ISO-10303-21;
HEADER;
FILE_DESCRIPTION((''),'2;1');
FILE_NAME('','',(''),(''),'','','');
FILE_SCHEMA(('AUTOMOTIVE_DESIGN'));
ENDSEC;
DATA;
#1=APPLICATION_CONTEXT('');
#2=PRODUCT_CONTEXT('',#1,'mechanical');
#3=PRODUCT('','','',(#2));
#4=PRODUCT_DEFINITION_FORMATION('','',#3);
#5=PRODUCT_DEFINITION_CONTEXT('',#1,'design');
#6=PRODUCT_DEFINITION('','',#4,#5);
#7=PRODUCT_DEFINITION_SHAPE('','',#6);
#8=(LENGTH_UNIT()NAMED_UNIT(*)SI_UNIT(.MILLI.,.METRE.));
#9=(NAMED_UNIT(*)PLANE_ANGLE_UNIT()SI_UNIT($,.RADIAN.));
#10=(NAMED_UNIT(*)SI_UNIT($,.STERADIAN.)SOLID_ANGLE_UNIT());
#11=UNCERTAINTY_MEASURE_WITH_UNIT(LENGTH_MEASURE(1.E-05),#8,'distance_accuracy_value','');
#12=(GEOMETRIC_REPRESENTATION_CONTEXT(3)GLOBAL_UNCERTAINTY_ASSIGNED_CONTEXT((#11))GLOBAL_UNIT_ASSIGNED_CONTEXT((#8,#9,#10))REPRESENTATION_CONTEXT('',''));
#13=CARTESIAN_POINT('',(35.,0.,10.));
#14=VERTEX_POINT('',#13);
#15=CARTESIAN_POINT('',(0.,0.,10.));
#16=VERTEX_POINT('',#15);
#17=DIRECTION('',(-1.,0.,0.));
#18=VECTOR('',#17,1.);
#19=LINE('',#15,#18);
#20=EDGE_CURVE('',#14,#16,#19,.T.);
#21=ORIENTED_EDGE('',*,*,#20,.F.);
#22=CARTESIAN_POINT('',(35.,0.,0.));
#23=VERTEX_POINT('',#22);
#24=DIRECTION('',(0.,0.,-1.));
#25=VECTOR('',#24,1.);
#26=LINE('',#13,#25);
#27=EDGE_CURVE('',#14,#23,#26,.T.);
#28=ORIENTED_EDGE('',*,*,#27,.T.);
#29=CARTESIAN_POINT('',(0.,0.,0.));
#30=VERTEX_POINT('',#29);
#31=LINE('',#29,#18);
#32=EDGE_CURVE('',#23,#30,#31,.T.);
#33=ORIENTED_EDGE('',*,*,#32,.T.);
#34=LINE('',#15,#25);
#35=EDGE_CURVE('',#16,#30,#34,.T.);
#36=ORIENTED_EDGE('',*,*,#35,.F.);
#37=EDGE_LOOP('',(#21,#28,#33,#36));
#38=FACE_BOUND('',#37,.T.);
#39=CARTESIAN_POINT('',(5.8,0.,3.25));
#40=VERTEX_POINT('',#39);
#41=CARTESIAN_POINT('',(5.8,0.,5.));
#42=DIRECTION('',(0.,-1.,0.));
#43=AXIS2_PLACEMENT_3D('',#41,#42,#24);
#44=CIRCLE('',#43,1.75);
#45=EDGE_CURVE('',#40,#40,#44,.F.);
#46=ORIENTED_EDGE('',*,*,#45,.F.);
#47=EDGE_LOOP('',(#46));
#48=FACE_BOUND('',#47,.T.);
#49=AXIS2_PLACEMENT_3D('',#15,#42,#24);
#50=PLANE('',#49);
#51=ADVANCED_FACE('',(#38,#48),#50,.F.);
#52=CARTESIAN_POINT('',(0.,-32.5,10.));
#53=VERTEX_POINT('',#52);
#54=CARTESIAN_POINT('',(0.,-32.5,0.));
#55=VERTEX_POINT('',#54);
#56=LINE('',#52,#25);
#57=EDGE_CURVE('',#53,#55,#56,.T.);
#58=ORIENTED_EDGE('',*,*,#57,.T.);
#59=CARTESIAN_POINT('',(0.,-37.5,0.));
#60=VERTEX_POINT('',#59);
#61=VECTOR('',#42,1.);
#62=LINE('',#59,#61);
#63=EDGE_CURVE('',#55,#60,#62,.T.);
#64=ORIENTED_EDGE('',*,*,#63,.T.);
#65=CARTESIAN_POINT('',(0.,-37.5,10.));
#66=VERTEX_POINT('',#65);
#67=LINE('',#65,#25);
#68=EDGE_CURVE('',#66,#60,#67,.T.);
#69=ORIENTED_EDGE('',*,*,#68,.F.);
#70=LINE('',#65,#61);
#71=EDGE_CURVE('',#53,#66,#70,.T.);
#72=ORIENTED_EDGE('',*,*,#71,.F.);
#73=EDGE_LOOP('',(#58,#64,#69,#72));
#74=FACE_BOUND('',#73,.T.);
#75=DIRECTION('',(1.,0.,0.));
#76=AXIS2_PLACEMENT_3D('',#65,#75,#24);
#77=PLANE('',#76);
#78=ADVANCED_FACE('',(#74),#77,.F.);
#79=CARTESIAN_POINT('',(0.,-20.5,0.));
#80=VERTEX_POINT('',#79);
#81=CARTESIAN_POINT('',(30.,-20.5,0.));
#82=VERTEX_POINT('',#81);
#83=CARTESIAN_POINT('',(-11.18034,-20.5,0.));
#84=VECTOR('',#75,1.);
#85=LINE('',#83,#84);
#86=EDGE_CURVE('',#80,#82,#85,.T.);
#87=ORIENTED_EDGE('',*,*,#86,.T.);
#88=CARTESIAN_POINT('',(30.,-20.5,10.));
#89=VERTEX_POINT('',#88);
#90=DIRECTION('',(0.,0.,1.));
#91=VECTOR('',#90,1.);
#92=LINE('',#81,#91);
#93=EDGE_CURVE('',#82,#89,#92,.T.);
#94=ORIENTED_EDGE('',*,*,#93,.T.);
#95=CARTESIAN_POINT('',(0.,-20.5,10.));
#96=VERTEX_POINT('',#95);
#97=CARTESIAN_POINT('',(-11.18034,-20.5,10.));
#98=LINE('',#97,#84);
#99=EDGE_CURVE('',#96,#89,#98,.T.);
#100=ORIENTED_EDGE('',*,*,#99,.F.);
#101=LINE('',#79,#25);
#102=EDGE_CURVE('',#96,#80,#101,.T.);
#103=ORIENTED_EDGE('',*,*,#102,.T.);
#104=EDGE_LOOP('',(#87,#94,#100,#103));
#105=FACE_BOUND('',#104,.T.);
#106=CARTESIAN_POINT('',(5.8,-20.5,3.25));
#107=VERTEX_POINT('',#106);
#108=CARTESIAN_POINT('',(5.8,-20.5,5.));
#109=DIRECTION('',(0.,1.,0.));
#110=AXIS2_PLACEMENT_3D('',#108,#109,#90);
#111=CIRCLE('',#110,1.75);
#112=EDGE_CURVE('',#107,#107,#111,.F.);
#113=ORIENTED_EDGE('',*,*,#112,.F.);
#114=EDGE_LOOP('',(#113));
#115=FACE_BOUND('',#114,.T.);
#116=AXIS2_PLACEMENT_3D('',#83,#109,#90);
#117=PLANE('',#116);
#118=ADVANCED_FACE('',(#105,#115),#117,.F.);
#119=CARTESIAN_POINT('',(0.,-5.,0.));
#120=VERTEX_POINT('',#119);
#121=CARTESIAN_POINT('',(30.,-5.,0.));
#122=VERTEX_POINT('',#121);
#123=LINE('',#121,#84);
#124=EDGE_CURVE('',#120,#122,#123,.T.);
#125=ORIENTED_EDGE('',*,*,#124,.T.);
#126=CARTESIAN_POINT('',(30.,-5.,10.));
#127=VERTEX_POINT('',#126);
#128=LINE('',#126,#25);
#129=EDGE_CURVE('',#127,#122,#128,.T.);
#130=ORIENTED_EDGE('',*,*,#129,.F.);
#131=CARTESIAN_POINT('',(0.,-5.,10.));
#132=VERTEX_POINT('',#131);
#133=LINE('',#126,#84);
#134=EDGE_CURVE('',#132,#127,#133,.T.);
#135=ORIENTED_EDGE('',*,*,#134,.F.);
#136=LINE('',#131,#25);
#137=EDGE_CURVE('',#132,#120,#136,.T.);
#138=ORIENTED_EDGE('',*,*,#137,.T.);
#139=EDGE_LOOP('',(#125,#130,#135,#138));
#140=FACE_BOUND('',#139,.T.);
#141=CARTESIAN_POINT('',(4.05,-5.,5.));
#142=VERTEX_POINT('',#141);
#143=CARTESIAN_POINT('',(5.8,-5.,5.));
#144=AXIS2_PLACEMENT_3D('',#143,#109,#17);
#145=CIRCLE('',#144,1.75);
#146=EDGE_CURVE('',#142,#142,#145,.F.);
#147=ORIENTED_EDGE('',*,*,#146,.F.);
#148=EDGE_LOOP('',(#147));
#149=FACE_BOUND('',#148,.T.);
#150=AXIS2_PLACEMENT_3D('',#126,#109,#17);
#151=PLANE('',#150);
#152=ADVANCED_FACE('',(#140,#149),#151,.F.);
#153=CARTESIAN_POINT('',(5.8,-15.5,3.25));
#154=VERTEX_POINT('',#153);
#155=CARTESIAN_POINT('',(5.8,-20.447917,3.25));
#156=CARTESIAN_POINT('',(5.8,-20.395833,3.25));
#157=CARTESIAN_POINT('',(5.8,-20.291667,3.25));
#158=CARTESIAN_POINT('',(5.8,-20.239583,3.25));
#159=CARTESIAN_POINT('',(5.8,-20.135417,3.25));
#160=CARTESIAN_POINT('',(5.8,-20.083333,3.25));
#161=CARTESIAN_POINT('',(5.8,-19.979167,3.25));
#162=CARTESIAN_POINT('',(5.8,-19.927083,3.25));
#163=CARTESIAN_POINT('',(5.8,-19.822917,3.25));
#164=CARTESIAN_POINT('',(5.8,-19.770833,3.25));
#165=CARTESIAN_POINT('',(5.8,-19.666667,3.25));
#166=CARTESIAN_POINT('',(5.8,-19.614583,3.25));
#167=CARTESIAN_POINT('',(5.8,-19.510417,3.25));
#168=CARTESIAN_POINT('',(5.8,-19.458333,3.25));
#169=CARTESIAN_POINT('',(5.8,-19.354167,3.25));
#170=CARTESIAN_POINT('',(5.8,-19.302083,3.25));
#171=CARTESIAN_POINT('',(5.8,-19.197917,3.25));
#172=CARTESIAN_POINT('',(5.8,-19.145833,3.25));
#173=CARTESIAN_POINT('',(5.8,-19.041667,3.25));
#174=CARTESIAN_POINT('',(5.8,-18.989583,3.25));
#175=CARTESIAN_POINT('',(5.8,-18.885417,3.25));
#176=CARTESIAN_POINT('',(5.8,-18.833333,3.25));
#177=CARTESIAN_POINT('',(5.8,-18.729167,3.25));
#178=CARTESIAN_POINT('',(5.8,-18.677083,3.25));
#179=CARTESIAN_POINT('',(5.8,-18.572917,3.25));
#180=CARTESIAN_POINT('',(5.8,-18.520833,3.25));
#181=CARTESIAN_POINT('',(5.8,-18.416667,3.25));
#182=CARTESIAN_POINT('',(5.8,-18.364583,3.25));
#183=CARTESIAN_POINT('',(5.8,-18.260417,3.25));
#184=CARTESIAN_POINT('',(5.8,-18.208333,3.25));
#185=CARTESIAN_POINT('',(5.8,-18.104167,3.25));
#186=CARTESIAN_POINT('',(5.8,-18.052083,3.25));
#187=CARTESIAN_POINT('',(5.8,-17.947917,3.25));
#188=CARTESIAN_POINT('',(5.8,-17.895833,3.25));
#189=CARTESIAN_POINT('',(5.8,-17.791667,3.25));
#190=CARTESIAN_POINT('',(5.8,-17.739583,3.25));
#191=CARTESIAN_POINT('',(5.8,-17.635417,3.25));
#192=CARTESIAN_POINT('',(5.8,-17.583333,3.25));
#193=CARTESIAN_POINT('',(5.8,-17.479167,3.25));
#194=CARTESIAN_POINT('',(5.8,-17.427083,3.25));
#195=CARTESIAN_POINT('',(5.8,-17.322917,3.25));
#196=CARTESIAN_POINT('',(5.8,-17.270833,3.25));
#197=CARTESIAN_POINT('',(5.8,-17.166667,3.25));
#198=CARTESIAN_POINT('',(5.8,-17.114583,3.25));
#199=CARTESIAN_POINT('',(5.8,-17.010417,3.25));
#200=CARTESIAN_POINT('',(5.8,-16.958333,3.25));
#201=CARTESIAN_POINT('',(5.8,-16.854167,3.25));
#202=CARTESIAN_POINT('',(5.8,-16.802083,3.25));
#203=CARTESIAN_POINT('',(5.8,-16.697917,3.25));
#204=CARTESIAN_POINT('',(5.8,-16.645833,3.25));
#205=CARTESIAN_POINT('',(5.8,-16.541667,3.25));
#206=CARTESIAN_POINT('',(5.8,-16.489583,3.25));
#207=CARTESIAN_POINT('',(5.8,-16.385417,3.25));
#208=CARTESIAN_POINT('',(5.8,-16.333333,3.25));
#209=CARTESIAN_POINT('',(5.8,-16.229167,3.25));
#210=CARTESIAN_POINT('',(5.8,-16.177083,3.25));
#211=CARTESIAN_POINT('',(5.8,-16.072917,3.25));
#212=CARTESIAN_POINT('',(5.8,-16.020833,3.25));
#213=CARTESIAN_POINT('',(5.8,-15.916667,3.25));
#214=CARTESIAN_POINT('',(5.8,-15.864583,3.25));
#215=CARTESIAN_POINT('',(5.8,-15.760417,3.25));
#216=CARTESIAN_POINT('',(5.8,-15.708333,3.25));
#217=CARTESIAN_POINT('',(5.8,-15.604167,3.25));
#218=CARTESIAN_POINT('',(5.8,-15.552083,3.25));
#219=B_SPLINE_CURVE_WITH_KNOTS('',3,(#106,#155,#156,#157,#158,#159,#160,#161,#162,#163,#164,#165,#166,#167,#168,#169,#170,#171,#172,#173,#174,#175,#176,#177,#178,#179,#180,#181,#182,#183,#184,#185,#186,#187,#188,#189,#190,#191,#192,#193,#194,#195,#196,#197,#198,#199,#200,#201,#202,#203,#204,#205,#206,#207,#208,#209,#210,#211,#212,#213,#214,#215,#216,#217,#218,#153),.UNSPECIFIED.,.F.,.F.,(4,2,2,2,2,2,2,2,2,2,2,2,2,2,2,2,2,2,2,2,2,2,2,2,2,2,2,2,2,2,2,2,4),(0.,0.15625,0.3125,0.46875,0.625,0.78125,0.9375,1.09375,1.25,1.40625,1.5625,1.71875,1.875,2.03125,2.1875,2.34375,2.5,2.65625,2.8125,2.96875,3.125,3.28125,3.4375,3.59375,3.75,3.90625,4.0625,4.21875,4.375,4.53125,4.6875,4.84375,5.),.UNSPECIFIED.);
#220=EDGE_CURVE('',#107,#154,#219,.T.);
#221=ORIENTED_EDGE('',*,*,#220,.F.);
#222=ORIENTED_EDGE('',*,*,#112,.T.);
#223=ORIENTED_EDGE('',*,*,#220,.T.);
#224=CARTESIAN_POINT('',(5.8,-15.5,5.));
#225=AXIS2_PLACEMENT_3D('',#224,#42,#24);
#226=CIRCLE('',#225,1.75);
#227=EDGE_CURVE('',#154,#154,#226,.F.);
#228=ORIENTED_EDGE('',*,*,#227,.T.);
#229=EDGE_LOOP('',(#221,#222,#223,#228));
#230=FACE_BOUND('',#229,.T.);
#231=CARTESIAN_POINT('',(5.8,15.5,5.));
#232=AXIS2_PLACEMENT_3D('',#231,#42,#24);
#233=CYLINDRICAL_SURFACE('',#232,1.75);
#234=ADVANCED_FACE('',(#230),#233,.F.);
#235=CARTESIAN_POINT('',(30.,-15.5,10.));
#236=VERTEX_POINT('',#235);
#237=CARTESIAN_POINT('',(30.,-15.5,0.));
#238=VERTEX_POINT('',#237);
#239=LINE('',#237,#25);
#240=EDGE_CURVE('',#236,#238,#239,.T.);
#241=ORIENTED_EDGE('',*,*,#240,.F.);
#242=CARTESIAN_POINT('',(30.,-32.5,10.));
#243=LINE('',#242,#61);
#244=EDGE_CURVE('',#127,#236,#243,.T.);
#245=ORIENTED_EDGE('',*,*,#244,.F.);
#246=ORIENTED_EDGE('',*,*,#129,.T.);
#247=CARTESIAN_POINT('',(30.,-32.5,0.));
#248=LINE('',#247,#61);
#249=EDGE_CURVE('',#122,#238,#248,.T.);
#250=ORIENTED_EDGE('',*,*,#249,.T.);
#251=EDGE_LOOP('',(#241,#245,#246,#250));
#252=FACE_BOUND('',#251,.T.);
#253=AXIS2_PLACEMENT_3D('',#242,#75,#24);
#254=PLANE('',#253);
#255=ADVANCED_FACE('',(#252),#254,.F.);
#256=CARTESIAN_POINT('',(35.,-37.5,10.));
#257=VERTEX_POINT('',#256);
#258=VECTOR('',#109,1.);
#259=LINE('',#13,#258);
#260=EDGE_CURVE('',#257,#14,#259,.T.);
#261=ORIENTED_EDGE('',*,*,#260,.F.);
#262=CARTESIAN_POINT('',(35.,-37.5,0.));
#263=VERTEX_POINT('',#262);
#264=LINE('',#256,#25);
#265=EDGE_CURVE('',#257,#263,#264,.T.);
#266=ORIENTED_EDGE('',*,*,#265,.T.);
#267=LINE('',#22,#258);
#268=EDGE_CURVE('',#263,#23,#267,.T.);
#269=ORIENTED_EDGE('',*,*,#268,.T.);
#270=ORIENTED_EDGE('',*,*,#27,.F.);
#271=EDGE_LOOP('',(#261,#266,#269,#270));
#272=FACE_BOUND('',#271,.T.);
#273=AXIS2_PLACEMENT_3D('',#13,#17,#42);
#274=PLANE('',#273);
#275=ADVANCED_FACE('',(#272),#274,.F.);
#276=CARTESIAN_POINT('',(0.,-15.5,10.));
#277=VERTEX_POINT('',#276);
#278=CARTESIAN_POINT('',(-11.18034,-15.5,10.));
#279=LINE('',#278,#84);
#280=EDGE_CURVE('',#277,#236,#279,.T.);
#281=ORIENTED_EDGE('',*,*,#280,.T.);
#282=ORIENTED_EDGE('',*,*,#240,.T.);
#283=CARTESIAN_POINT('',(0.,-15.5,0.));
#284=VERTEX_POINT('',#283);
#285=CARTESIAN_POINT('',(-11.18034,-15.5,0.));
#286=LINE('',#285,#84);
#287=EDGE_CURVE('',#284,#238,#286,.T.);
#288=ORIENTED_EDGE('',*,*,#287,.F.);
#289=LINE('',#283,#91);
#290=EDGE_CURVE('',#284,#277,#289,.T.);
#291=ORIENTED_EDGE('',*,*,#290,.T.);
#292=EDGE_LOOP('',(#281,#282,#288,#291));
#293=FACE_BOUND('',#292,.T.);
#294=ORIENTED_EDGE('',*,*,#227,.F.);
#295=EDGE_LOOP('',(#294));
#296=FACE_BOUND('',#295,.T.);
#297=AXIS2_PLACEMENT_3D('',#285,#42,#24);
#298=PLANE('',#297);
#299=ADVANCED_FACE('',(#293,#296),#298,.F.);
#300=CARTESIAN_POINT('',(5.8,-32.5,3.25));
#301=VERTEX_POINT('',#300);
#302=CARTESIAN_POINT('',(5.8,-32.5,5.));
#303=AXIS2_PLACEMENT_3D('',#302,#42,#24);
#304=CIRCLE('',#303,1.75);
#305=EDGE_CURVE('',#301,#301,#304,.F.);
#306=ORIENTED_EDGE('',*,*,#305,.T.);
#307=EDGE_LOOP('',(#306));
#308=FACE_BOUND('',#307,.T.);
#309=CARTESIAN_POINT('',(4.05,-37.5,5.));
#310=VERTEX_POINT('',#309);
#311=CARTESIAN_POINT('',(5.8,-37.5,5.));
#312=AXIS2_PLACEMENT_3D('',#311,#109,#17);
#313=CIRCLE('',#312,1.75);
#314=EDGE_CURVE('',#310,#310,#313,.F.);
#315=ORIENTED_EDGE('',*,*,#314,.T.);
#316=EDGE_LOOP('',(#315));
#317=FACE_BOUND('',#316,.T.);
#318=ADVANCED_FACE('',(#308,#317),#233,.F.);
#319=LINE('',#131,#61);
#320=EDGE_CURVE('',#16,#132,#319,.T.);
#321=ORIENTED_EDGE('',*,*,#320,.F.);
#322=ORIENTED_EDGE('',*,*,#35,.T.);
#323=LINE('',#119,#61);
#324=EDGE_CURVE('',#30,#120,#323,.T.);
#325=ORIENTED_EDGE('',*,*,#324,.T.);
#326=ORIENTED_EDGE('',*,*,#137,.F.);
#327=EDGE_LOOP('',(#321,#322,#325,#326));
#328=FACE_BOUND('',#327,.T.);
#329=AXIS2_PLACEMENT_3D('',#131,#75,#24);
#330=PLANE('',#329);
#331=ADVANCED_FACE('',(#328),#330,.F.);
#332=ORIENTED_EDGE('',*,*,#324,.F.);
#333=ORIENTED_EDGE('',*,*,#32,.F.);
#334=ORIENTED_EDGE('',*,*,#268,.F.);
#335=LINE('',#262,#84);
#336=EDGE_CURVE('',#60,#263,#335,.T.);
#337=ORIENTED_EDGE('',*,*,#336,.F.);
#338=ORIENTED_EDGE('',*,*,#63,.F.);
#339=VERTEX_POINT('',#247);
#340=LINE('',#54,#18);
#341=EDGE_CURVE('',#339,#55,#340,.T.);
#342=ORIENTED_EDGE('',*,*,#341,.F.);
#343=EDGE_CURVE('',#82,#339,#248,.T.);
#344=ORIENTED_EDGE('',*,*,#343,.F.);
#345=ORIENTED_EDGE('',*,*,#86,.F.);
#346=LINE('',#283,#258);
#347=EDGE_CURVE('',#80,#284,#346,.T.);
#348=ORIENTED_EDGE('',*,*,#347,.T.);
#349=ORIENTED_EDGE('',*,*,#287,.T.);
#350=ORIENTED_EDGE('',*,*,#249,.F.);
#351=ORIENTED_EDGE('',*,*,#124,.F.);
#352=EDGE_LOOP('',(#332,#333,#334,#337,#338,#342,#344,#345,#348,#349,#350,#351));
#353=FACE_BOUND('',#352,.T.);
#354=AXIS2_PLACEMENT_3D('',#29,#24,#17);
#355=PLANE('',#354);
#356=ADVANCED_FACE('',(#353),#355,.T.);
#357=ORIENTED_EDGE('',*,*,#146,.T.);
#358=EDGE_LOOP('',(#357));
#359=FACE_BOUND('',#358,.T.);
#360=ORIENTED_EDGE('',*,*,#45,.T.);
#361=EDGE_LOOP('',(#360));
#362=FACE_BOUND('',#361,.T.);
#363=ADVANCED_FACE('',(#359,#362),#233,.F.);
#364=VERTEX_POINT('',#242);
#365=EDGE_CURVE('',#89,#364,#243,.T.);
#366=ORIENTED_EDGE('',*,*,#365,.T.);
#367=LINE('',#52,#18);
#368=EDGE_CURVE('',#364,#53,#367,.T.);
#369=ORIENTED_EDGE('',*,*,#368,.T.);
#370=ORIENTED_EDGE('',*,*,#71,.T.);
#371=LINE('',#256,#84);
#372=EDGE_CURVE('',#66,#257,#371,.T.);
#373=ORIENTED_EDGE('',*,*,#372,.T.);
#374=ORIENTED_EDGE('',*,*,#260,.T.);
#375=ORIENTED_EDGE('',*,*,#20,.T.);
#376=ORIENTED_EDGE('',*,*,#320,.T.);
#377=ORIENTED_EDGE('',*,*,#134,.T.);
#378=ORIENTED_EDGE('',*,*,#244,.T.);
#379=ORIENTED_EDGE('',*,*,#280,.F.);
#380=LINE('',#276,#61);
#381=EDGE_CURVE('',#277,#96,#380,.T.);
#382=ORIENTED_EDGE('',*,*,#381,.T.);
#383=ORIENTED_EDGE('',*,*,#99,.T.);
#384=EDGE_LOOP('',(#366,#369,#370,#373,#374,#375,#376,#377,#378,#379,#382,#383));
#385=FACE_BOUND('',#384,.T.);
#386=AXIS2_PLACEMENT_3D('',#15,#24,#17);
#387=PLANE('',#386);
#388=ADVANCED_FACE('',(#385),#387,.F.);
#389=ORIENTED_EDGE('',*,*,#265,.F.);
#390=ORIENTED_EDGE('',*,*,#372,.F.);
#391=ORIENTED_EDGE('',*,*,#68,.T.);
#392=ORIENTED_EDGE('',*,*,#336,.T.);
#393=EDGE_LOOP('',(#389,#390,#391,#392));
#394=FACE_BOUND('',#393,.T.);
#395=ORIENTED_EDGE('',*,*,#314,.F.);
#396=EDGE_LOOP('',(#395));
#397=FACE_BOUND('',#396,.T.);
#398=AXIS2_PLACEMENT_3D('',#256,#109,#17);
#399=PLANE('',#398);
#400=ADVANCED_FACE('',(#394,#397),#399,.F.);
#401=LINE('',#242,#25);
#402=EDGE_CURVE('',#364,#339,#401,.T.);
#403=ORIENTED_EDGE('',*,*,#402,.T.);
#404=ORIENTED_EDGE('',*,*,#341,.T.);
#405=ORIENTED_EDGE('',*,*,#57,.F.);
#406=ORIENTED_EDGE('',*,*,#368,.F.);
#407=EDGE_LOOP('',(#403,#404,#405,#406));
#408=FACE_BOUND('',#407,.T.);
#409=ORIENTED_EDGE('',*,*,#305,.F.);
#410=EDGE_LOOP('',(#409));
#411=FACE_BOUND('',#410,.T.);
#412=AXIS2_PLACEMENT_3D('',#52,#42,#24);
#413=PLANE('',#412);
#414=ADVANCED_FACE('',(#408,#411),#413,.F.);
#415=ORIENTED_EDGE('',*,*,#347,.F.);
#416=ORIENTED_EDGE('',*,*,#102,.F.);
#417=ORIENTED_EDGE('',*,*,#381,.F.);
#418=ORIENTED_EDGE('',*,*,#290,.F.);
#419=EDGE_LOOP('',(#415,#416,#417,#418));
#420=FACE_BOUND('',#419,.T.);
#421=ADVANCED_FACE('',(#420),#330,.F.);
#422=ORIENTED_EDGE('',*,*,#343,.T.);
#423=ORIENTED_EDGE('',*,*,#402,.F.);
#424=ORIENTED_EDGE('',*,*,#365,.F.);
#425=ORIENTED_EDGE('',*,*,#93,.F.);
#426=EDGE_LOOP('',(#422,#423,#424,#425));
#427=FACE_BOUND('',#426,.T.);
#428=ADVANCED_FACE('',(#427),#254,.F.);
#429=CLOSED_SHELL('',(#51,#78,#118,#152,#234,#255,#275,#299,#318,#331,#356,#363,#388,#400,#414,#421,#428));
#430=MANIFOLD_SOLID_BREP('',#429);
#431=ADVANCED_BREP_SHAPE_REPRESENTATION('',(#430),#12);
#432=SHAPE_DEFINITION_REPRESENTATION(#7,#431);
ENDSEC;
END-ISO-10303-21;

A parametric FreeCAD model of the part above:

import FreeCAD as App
import Part
import Sketcher
from FreeCAD import Vector


def add_polygon(sketch, points):
    """Adds a closed chain of lines whose ends are joined by coincident constraints."""
    first, n = sketch.GeometryCount, len(points)
    for a, b in zip(points, points[1:] + points[:1]):
        sketch.addGeometry(Part.LineSegment(App.Vector(*a, 0), App.Vector(*b, 0)), False)
    for i in range(n):
        sketch.addConstraint(Sketcher.Constraint("Coincident", first + i, 2, first + (i + 1) % n, 1))

doc = App.newDocument("Part")
body = doc.addObject("PartDesign::Body", "Body")

# Sketch on XY plane
sketch1 = doc.addObject("Sketcher::SketchObject", "Sketch")
body.addObject(sketch1)
sketch1.AttachmentSupport = (doc.XY_Plane, [""])
sketch1.MapMode = "FlatFace"
add_polygon(sketch1, [(35, 0), (0, 0), (0, -5), (30, -5), (30, -32), (0, -32), (0, -38), (35, -38)])  # lines 0-7
sketch1.addConstraint(Sketcher.Constraint("Horizontal", 0))
sketch1.addConstraint(Sketcher.Constraint("Vertical", 1))
sketch1.addConstraint(Sketcher.Constraint("Horizontal", 2))
sketch1.addConstraint(Sketcher.Constraint("Vertical", 3))
sketch1.addConstraint(Sketcher.Constraint("Horizontal", 4))
sketch1.addConstraint(Sketcher.Constraint("Vertical", 5))
sketch1.addConstraint(Sketcher.Constraint("Horizontal", 6))
sketch1.addConstraint(Sketcher.Constraint("Vertical", 7))
sketch1.addConstraint(Sketcher.Constraint("Coincident", 0, 2, -1, 1))
sketch1.addConstraint(Sketcher.Constraint("PointOnObject", 4, 2, -2))
sketch1.addConstraint(Sketcher.Constraint("Equal", 1, 5))
sketch1.addConstraint(Sketcher.Constraint("DistanceX", 0, 2, 0, 1, 35.0))
sketch1.addConstraint(Sketcher.Constraint("DistanceX", 2, 1, 2, 2, 30.0))
sketch1.addConstraint(Sketcher.Constraint("DistanceY", 1, 2, 1, 1, 5.0))
sketch1.addConstraint(Sketcher.Constraint("DistanceY", 3, 2, 3, 1, 27.5))
pad1 = doc.addObject("PartDesign::Pad", "Pad")
body.addObject(pad1)
pad1.Profile = sketch1
pad1.Length = 10

# Sketch on XZ plane
sketch2 = doc.addObject("Sketcher::SketchObject", "Sketch001")
body.addObject(sketch2)
sketch2.AttachmentSupport = (doc.XZ_Plane, [""])
sketch2.MapMode = "FlatFace"
sketch2.addGeometry(Part.Circle(Vector(5.8, 5, 0), Vector(0, 0, 1), 1.7), False)
sketch2.addConstraint(Sketcher.Constraint("Diameter", 0, 3.4))
sketch2.addConstraint(Sketcher.Constraint("DistanceY", -1, 1, 0, 3, 5.0))
sketch2.addConstraint(Sketcher.Constraint("DistanceX", -1, 1, 0, 3, 5.8))
pocket1 = doc.addObject("PartDesign::Pocket", "Pocket")
body.addObject(pocket1)
pocket1.Profile = sketch2
pocket1.Length = 47
pocket1.Reversed = True

# Sketch on YZ plane
sketch3 = doc.addObject("Sketcher::SketchObject", "Sketch002")
body.addObject(sketch3)
sketch3.AttachmentSupport = (doc.YZ_Plane, [""])
sketch3.MapMode = "FlatFace"
sketch3.AttachmentOffset = App.Placement(Vector(0, 0, 30), App.Rotation())
add_polygon(sketch3, [(-16, 0), (-20, 0), (-20, 10), (-16, 10)])  # lines 0-3
sketch3.addConstraint(Sketcher.Constraint("Horizontal", 0))
sketch3.addConstraint(Sketcher.Constraint("Vertical", 1))
sketch3.addConstraint(Sketcher.Constraint("Horizontal", 2))
sketch3.addConstraint(Sketcher.Constraint("Vertical", 3))
sketch3.addConstraint(Sketcher.Constraint("PointOnObject", 0, 2, -1))
sketch3.addConstraint(Sketcher.Constraint("DistanceX", 0, 2, 0, 1, 5.0))
sketch3.addConstraint(Sketcher.Constraint("DistanceY", 1, 1, 1, 2, 10.0))
sketch3.addConstraint(Sketcher.Constraint("DistanceX", 0, 2, -1, 1, 20.5))
pad2 = doc.addObject("PartDesign::Pad", "Pad001")
body.addObject(pad2)
pad2.Profile = sketch3
pad2.Length = 30
pad2.Reversed = True

# Sketch on XZ plane
sketch4 = doc.addObject("Sketcher::SketchObject", "Sketch003")
body.addObject(sketch4)
sketch4.AttachmentSupport = (doc.XZ_Plane, [""])
sketch4.MapMode = "FlatFace"
sketch4.AttachmentOffset = App.Placement(Vector(0, 0, 15.5), App.Rotation())
sketch4.addGeometry(Part.Circle(Vector(5.8, 5, 0), Vector(0, 0, 1), 1.8), False)
sketch4.addConstraint(Sketcher.Constraint("Diameter", 0, 3.5))
sketch4.addConstraint(Sketcher.Constraint("DistanceY", -1, 1, 0, 3, 5.0))
sketch4.addConstraint(Sketcher.Constraint("DistanceX", -1, 1, 0, 3, 5.8))
pocket2 = doc.addObject("PartDesign::Pocket", "Pocket001")
body.addObject(pocket2)
pocket2.Profile = sketch4
pocket2.Type = "ThroughAll"
pocket2.Midplane = True

doc.recompute()
